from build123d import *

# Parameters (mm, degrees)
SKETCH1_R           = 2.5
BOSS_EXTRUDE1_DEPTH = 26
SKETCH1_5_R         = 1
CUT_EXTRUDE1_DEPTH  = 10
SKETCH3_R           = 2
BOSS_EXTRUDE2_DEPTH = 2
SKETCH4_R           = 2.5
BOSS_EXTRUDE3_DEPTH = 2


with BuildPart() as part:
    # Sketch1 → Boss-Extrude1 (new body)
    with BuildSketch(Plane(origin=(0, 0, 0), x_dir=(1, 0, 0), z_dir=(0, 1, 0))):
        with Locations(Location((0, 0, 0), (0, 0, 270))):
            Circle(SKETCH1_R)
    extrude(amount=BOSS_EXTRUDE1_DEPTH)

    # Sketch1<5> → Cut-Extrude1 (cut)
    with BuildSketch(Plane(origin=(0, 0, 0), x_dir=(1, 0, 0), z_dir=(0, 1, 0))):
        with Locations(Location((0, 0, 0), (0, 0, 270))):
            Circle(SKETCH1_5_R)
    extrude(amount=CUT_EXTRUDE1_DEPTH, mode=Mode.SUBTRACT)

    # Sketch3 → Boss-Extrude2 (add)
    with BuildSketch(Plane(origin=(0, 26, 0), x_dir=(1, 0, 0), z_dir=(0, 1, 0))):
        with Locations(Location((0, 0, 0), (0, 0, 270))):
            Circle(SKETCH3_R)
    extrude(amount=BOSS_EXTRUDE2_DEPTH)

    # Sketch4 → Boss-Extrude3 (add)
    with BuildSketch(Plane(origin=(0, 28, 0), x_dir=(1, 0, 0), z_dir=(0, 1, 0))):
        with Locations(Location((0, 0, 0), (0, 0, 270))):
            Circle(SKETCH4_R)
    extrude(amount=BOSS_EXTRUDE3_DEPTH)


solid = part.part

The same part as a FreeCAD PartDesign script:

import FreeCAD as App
import Part
import Sketcher
Q = App.Units.Quantity

doc = App.newDocument("Part")
body = doc.addObject("PartDesign::Body", "Body")

# Sketch on XZ plane
sketch1 = body.newObject("Sketcher::SketchObject", "Sketch")
sketch1.AttachmentSupport = (doc.getObject("XZ_Plane"), [""])
sketch1.MapMode = "FlatFace"
sketch1.addGeometry(Part.Circle(App.Vector(0, 0, 0), App.Vector(0, 0, 1), 2.5), False)
sketch1.addConstraint([
    Sketcher.Constraint("Coincident", 0, 3, -1, 1),
    Sketcher.Constraint("Diameter", 0, Q("5 mm")),
])
pad1 = body.newObject("PartDesign::Pad", "Pad")
pad1.Profile = sketch1
pad1.Length = 26
pad1.Reversed = True

# Sketch on XZ plane
sketch2 = body.newObject("Sketcher::SketchObject", "Sketch001")
sketch2.AttachmentSupport = (doc.getObject("XZ_Plane"), [""])
sketch2.MapMode = "FlatFace"
sketch2.addGeometry(Part.Circle(App.Vector(0, 0, 0), App.Vector(0, 0, 1), 1), False)
sketch2.addConstraint([
    Sketcher.Constraint("Coincident", 0, 3, -1, 1),
    Sketcher.Constraint("Diameter", 0, Q("2 mm")),
])
pocket1 = body.newObject("PartDesign::Pocket", "Pocket")
pocket1.Profile = sketch2
pocket1.Length = 10

# Sketch on XZ plane
sketch3 = body.newObject("Sketcher::SketchObject", "Sketch002")
sketch3.AttachmentSupport = (doc.getObject("XZ_Plane"), [""])
sketch3.MapMode = "FlatFace"
sketch3.AttachmentOffset = App.Placement(App.Vector(0, 0, -26), App.Rotation())
sketch3.addGeometry(Part.Circle(App.Vector(0, 0, 0), App.Vector(0, 0, 1), 2), False)
sketch3.addConstraint([
    Sketcher.Constraint("Coincident", 0, 3, -1, 1),
    Sketcher.Constraint("Diameter", 0, Q("4 mm")),
])
pad2 = body.newObject("PartDesign::Pad", "Pad001")
pad2.Profile = sketch3
pad2.Length = 2
pad2.Reversed = True

# Sketch on XZ plane
sketch4 = body.newObject("Sketcher::SketchObject", "Sketch003")
sketch4.AttachmentSupport = (doc.getObject("XZ_Plane"), [""])
sketch4.MapMode = "FlatFace"
sketch4.AttachmentOffset = App.Placement(App.Vector(0, 0, -28), App.Rotation())
sketch4.addGeometry(Part.Circle(App.Vector(0, 0, 0), App.Vector(0, 0, 1), 2.5), False)
sketch4.addConstraint([
    Sketcher.Constraint("Coincident", 0, 3, -1, 1),
    Sketcher.Constraint("Diameter", 0, Q("5 mm")),
])
pad3 = body.newObject("PartDesign::Pad", "Pad002")
pad3.Profile = sketch4
pad3.Length = 2
pad3.Reversed = True

doc.recompute()
